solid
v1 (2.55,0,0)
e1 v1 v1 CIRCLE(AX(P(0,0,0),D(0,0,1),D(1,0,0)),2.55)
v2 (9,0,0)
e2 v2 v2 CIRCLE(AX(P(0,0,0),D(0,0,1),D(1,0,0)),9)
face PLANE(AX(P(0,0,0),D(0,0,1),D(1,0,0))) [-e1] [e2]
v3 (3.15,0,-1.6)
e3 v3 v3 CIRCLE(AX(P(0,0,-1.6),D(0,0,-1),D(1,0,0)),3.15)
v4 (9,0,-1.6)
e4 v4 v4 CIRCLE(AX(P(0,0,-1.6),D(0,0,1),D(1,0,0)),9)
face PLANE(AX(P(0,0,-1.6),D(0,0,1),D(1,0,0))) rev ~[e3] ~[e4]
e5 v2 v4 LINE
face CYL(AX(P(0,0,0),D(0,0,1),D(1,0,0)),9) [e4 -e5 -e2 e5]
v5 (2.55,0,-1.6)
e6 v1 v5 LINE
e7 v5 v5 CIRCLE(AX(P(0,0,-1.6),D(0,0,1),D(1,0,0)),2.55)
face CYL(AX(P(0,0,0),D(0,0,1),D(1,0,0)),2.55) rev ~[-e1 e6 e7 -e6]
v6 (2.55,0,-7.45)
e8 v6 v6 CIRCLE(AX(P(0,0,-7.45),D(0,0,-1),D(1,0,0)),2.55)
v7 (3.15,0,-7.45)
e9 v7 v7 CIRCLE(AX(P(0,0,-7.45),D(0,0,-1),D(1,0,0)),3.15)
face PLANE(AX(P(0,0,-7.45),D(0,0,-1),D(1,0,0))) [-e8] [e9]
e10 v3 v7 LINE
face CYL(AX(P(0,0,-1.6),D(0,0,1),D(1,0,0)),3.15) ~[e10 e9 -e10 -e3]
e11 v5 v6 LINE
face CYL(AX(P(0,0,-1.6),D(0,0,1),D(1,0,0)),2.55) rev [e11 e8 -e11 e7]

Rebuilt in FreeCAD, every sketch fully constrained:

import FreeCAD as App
import Part
import Sketcher
Q = App.Units.Quantity

doc = App.newDocument("Part")
body = doc.addObject("PartDesign::Body", "Body")

# Sketch on XY plane
sketch1 = body.newObject("Sketcher::SketchObject", "Sketch")
sketch1.AttachmentSupport = (doc.getObject("XY_Plane"), [""])
sketch1.MapMode = "FlatFace"
sketch1.addGeometry([
    Part.Circle(App.Vector(0, 0, 0), App.Vector(0, 0, 1), 9),
    Part.Circle(App.Vector(0, 0, 0), App.Vector(0, 0, 1), 2.55),
], False)
sketch1.addConstraint([
    Sketcher.Constraint("Coincident", 0, 3, -1, 1),
    Sketcher.Constraint("Coincident", 1, 3, -1, 1),
    Sketcher.Constraint("Diameter", 0, Q("18 mm")),
    Sketcher.Constraint("Diameter", 1, Q("5.1 mm")),
])
pad1 = body.newObject("PartDesign::Pad", "Pad")
pad1.Profile = sketch1
pad1.Length = 1.6
pad1.Reversed = True

# Sketch on XY plane
sketch2 = body.newObject("Sketcher::SketchObject", "Sketch001")
sketch2.AttachmentSupport = (doc.getObject("XY_Plane"), [""])
sketch2.MapMode = "FlatFace"
sketch2.AttachmentOffset = App.Placement(App.Vector(0, 0, -1.6), App.Rotation())
sketch2.addGeometry([
    Part.Circle(App.Vector(0, 0, 0), App.Vector(0, 0, 1), 3.15),
    Part.Circle(App.Vector(0, 0, 0), App.Vector(0, 0, 1), 2.55),
], False)
sketch2.addConstraint([
    Sketcher.Constraint("Coincident", 0, 3, -1, 1),
    Sketcher.Constraint("Coincident", 1, 3, -1, 1),
    Sketcher.Constraint("Diameter", 0, Q("6.3 mm")),
    Sketcher.Constraint("Diameter", 1, Q("5.1 mm")),
])
pad2 = body.newObject("PartDesign::Pad", "Pad001")
pad2.Profile = sketch2
pad2.Length = 5.85
pad2.Reversed = True

doc.recompute()
